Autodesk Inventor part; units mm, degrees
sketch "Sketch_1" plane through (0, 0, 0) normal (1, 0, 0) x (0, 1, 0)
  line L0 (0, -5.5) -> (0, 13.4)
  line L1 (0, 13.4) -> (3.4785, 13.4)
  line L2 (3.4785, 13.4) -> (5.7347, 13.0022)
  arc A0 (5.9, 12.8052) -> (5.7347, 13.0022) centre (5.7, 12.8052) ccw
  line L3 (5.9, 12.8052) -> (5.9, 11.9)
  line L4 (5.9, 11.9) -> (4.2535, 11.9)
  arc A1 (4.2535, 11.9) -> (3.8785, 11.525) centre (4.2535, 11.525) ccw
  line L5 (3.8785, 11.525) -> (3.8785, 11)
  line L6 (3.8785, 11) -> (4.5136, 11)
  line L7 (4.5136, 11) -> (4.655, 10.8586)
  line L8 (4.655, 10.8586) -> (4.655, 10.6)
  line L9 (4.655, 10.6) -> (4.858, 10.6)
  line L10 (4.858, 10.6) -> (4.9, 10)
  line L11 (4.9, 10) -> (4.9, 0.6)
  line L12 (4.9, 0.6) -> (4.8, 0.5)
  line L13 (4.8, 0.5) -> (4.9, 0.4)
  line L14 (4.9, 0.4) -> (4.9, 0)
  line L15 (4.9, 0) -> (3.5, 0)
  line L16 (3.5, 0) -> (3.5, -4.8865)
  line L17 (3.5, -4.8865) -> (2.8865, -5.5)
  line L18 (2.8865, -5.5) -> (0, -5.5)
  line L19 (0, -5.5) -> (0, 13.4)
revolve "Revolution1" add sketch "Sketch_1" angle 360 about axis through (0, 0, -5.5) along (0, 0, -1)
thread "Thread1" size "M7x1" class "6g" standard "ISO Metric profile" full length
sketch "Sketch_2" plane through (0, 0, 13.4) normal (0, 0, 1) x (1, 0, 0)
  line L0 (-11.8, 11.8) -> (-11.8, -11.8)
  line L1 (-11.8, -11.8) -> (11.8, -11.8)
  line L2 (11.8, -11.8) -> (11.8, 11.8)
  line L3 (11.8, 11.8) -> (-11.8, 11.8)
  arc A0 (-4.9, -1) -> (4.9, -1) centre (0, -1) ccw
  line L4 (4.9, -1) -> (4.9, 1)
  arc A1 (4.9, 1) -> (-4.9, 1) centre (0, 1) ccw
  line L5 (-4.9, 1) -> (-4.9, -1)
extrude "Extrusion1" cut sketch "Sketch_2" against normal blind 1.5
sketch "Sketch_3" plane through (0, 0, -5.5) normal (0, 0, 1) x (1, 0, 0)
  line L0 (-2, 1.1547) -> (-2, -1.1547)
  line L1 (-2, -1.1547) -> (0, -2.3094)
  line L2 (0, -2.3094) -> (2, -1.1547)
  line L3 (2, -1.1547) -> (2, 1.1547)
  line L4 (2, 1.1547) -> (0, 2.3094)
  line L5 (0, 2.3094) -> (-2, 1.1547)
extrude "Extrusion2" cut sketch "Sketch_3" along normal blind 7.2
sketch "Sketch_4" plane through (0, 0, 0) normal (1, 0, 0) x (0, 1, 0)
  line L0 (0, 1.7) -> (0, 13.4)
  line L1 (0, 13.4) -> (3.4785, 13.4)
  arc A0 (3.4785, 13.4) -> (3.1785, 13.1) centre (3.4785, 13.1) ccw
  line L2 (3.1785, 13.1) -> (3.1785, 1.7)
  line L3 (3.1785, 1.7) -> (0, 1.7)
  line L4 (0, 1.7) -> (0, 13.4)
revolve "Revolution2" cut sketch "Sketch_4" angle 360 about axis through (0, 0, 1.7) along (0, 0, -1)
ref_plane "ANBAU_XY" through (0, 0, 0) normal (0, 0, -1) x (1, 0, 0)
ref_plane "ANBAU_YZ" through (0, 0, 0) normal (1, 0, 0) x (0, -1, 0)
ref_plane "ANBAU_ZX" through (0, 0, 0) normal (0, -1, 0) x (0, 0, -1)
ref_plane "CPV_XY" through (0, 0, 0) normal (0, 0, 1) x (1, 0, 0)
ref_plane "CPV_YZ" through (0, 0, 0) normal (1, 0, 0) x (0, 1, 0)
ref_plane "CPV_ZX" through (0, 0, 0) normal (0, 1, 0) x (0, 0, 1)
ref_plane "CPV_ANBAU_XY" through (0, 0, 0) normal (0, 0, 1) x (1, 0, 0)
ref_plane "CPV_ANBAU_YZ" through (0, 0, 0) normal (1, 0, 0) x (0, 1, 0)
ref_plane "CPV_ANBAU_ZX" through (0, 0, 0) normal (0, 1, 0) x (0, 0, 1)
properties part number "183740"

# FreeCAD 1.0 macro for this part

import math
import FreeCAD as App
import Part
import Sketcher
from FreeCAD import Vector
Q = App.Units.Quantity


def add_polygon(sketch, points):
    """Adds a closed chain of lines whose ends are joined by coincident constraints."""
    first, n = sketch.GeometryCount, len(points)
    for a, b in zip(points, points[1:] + points[:1]):
        sketch.addGeometry(Part.LineSegment(App.Vector(*a, 0), App.Vector(*b, 0)), False)
    for i in range(n):
        sketch.addConstraint(Sketcher.Constraint("Coincident", first + i, 2, first + (i + 1) % n, 1))

doc = App.newDocument("Part")
params = doc.addObject("Spreadsheet::Sheet", "Params")
for row, (alias, value) in enumerate([
    ("sketch1_radius", "0.2 mm"),
    ("sketch1_width", "1.4 mm"),
    ("sketch1_height", "18.9 mm"),
    ("sketch1_height2", "0.4 mm"),
    ("sketch1_height3", "9.4 mm"),
    ("revolution_angle", "360 deg"),
    ("sketch2_radius", "4.9 mm"),
    ("sketch2_height", "2 mm"),
    ("sketch2_width", "23.6 mm"),
    ("pocket1_length", "1.5 mm"),
    ("pocket2_length", "7.2 mm"),
    ("sketch4_radius", "0.3 mm"),
    ("sketch4_height", "11.7 mm"),
    ("groove_angle", "360 deg"),
], start=1):
    params.set(f"A{row}", alias)
    params.set(f"B{row}", "=" + value)
    params.setAlias(f"B{row}", alias)

body = doc.addObject("PartDesign::Body", "Body")

# Sketch on YZ plane
sketch1 = body.newObject("Sketcher::SketchObject", "Sketch")
sketch1.AttachmentSupport = (doc.getObject("YZ_Plane"), [""])
sketch1.MapMode = "FlatFace"
sketch1.addGeometry(Part.LineSegment(Vector(0, 13.4, 0), Vector(0, -5.5, 0)), False)
sketch1.addGeometry(Part.LineSegment(Vector(0, -5.5, 0), Vector(2.89, -5.5, 0)), False)
sketch1.addGeometry(Part.LineSegment(Vector(2.89, -5.5, 0), Vector(3.5, -4.89, 0)), False)
sketch1.addGeometry(Part.LineSegment(Vector(3.5, -4.89, 0), Vector(3.5, 0, 0)), False)
sketch1.addGeometry(Part.LineSegment(Vector(3.5, 0, 0), Vector(4.9, 0, 0)), False)
sketch1.addGeometry(Part.LineSegment(Vector(4.9, 0, 0), Vector(4.9, 0.4, 0)), False)
sketch1.addGeometry(Part.LineSegment(Vector(4.9, 0.4, 0), Vector(4.8, 0.5, 0)), False)
sketch1.addGeometry(Part.LineSegment(Vector(4.8, 0.5, 0), Vector(4.9, 0.6, 0)), False)
sketch1.addGeometry(Part.LineSegment(Vector(4.9, 0.6, 0), Vector(4.9, 10, 0)), False)
sketch1.addGeometry(Part.LineSegment(Vector(4.9, 10, 0), Vector(4.86, 10.6, 0)), False)
sketch1.addGeometry(Part.LineSegment(Vector(4.86, 10.6, 0), Vector(4.66, 10.6, 0)), False)
sketch1.addGeometry(Part.LineSegment(Vector(4.66, 10.6, 0), Vector(4.66, 10.86, 0)), False)
sketch1.addGeometry(Part.LineSegment(Vector(4.66, 10.86, 0), Vector(4.51, 11, 0)), False)
sketch1.addGeometry(Part.LineSegment(Vector(4.51, 11, 0), Vector(3.88, 11, 0)), False)
sketch1.addGeometry(Part.LineSegment(Vector(3.88, 11, 0), Vector(3.88, 11.53, 0)), False)
sketch1.addGeometry(Part.ArcOfCircle(Part.Circle(Vector(4.25, 11.53, 0), Vector(0, 0, 1), 0.38), math.radians(90), math.radians(180)), False)
sketch1.addGeometry(Part.LineSegment(Vector(4.25, 11.9, 0), Vector(5.9, 11.9, 0)), False)
sketch1.addGeometry(Part.LineSegment(Vector(5.9, 11.9, 0), Vector(5.9, 12.81, 0)), False)
sketch1.addGeometry(Part.ArcOfCircle(Part.Circle(Vector(5.7, 12.81, 0), Vector(0, 0, 1), 0.2), math.radians(0), math.radians(80)), False)
sketch1.addGeometry(Part.LineSegment(Vector(5.73, 13, 0), Vector(3.48, 13.4, 0)), False)
sketch1.addGeometry(Part.LineSegment(Vector(3.48, 13.4, 0), Vector(0, 13.4, 0)), False)
sketch1.addConstraint(Sketcher.Constraint("Coincident", 0, 2, 1, 1))
sketch1.addConstraint(Sketcher.Constraint("Coincident", 1, 2, 2, 1))
sketch1.addConstraint(Sketcher.Constraint("Coincident", 2, 2, 3, 1))
sketch1.addConstraint(Sketcher.Constraint("Coincident", 3, 2, 4, 1))
sketch1.addConstraint(Sketcher.Constraint("Coincident", 4, 2, 5, 1))
sketch1.addConstraint(Sketcher.Constraint("Coincident", 5, 2, 6, 1))
sketch1.addConstraint(Sketcher.Constraint("Coincident", 6, 2, 7, 1))
sketch1.addConstraint(Sketcher.Constraint("Coincident", 7, 2, 8, 1))
sketch1.addConstraint(Sketcher.Constraint("Coincident", 8, 2, 9, 1))
sketch1.addConstraint(Sketcher.Constraint("Coincident", 9, 2, 10, 1))
sketch1.addConstraint(Sketcher.Constraint("Coincident", 10, 2, 11, 1))
sketch1.addConstraint(Sketcher.Constraint("Coincident", 11, 2, 12, 1))
sketch1.addConstraint(Sketcher.Constraint("Coincident", 12, 2, 13, 1))
sketch1.addConstraint(Sketcher.Constraint("Coincident", 13, 2, 14, 1))
sketch1.addConstraint(Sketcher.Constraint("Tangent", 14, 2, 15, 2))
sketch1.addConstraint(Sketcher.Constraint("Tangent", 15, 1, 16, 1))
sketch1.addConstraint(Sketcher.Constraint("Coincident", 16, 2, 17, 1))
sketch1.addConstraint(Sketcher.Constraint("Tangent", 17, 2, 18, 1))
sketch1.addConstraint(Sketcher.Constraint("Tangent", 18, 2, 19, 1))
sketch1.addConstraint(Sketcher.Constraint("Coincident", 19, 2, 20, 1))
sketch1.addConstraint(Sketcher.Constraint("Coincident", 20, 2, 0, 1))
sketch1.addConstraint(Sketcher.Constraint("Vertical", 0))
sketch1.addConstraint(Sketcher.Constraint("Horizontal", 1))
sketch1.addConstraint(Sketcher.Constraint("Vertical", 3))
sketch1.addConstraint(Sketcher.Constraint("Horizontal", 4))
sketch1.addConstraint(Sketcher.Constraint("Vertical", 5))
sketch1.addConstraint(Sketcher.Constraint("Vertical", 8))
sketch1.addConstraint(Sketcher.Constraint("Horizontal", 10))
sketch1.addConstraint(Sketcher.Constraint("Vertical", 11))
sketch1.addConstraint(Sketcher.Constraint("Horizontal", 13))
sketch1.addConstraint(Sketcher.Constraint("Vertical", 14))
sketch1.addConstraint(Sketcher.Constraint("Horizontal", 16))
sketch1.addConstraint(Sketcher.Constraint("Vertical", 17))
sketch1.addConstraint(Sketcher.Constraint("Horizontal", 20))
sketch1.addConstraint(Sketcher.Constraint("PointOnObject", 0, 2, -2))
sketch1.addConstraint(Sketcher.Constraint("PointOnObject", 3, 2, -1))
sketch1.addConstraint(Sketcher.Constraint("Perpendicular", 2, 6))
sketch1.addConstraint(Sketcher.Constraint("Perpendicular", 6, 7))
sketch1.addConstraint(Sketcher.Constraint("Perpendicular", 7, 12))
sketch1.addConstraint(Sketcher.Constraint("Vertical", 5, 2, 7, 2))
sketch1.addConstraint(Sketcher.Constraint("Equal", 6, 7))
sketch1.addConstraint(Sketcher.Constraint("Radius", 18, Q("0.2 mm")))
sketch1.addConstraint(Sketcher.Constraint("Angle", 19, Q("170.0007 deg")))
sketch1.addConstraint(Sketcher.Constraint("DistanceX", 4, 1, 4, 2, Q("1.4 mm")))
sketch1.addConstraint(Sketcher.Constraint("DistanceY", 0, 2, 0, 1, Q("18.9 mm")))
sketch1.addConstraint(Sketcher.Constraint("DistanceY", 5, 1, 5, 2, Q("0.4 mm")))
sketch1.addConstraint(Sketcher.Constraint("DistanceY", 8, 1, 8, 2, Q("9.4 mm")))
sketch1.addConstraint(Sketcher.Constraint("DistanceY", -1, 1, 8, 2, Q("10 mm")))
sketch1.addConstraint(Sketcher.Constraint("DistanceY", -1, 1, 12, 2, Q("11 mm")))
sketch1.addConstraint(Sketcher.Constraint("Radius", 15, Q("0.375 mm")))
sketch1.addConstraint(Sketcher.Constraint("DistanceY", 1, 2, 6, 2, Q("6 mm")))
sketch1.addConstraint(Sketcher.Constraint("DistanceY", 7, 2, 9, 2, Q("10 mm")))
sketch1.addConstraint(Sketcher.Constraint("Distance", 12, Q("0.2 mm")))
sketch1.addConstraint(Sketcher.Constraint("DistanceX", -1, 1, 18, 3, Q("5.7 mm")))
sketch1.addConstraint(Sketcher.Constraint("DistanceX", -1, 1, 2, 2, Q("3.5 mm")))
sketch1.addConstraint(Sketcher.Constraint("DistanceY", -1, 1, 15, 1, Q("11.9 mm")))
sketch1.addConstraint(Sketcher.Constraint("DistanceX", 19, 2, 14, 2, Q("0.4 mm")))
sketch1.addConstraint(Sketcher.Constraint("DistanceX", 10, 2, 10, 1, Q("0.203 mm")))
sketch1.addConstraint(Sketcher.Constraint("DistanceX", 13, 2, 13, 1, Q("0.635 mm")))
sketch1.addConstraint(Sketcher.Constraint("Distance", 19, Q("2.291 mm")))
sketch1.addConstraint(Sketcher.Constraint("DistanceX", 1, 1, 1, 2, Q("2.8865 mm")))
sketch1.setExpression("Constraints[41]", "Params.sketch1_radius")
sketch1.setExpression("Constraints[43]", "Params.sketch1_width")
sketch1.setExpression("Constraints[44]", "Params.sketch1_height")
sketch1.setExpression("Constraints[45]", "Params.sketch1_height2")
sketch1.setExpression("Constraints[46]", "Params.sketch1_height3")
revolution = body.newObject("PartDesign::Revolution", "Revolution")
revolution.Profile = sketch1
revolution.ReferenceAxis = (sketch1, ["V_Axis"])
revolution.setExpression("Angle", "Params.revolution_angle")

# Sketch on XY plane
sketch2 = body.newObject("Sketcher::SketchObject", "Sketch001")
sketch2.AttachmentSupport = (doc.getObject("XY_Plane"), [""])
sketch2.MapMode = "FlatFace"
sketch2.AttachmentOffset = App.Placement(Vector(0, 0, 13.4), App.Rotation())
add_polygon(sketch2, [(11.8, 11.8), (-11.8, 11.8), (-11.8, -11.8), (11.8, -11.8)])  # lines 0-3
sketch2.addGeometry(Part.ArcOfCircle(Part.Circle(Vector(0, -1, 0), Vector(0, 0, 1), 4.9), math.radians(180), math.radians(360)), False)  # 4
sketch2.addGeometry(Part.LineSegment(Vector(-4.9, -1, 0), Vector(-4.9, 1, 0)), False)  # 5
sketch2.addGeometry(Part.ArcOfCircle(Part.Circle(Vector(0, 1, 0), Vector(0, 0, 1), 4.9), math.radians(0), math.radians(180)), False)  # 6
sketch2.addGeometry(Part.LineSegment(Vector(4.9, 1, 0), Vector(4.9, -1, 0)), False)  # 7
sketch2.addConstraint(Sketcher.Constraint("Tangent", 4, 1, 5, 1))
sketch2.addConstraint(Sketcher.Constraint("Tangent", 5, 2, 6, 2))
sketch2.addConstraint(Sketcher.Constraint("Tangent", 6, 1, 7, 1))
sketch2.addConstraint(Sketcher.Constraint("Tangent", 7, 2, 4, 2))
sketch2.addConstraint(Sketcher.Constraint("Horizontal", 0))
sketch2.addConstraint(Sketcher.Constraint("Vertical", 1))
sketch2.addConstraint(Sketcher.Constraint("Horizontal", 2))
sketch2.addConstraint(Sketcher.Constraint("Vertical", 3))
sketch2.addConstraint(Sketcher.Constraint("Vertical", 5))
sketch2.addConstraint(Sketcher.Constraint("Vertical", 7))
sketch2.addConstraint(Sketcher.Constraint("Symmetric", 4, 3, 6, 3, -1, 1))
sketch2.addConstraint(Sketcher.Constraint("Symmetric", 0, 2, 2, 2, -1, 1))
sketch2.addConstraint(Sketcher.Constraint("Equal", 2, 1))
sketch2.addConstraint(Sketcher.Constraint("Radius", 4, Q("4.9 mm")))
sketch2.addConstraint(Sketcher.Constraint("DistanceY", 5, 1, 5, 2, Q("2 mm")))
sketch2.addConstraint(Sketcher.Constraint("DistanceX", 0, 2, 0, 1, Q("23.6 mm")))
sketch2.setExpression("Constraints[17]", "Params.sketch2_radius")
sketch2.setExpression("Constraints[18]", "Params.sketch2_height")
sketch2.setExpression("Constraints[19]", "Params.sketch2_width")
pocket1 = body.newObject("PartDesign::Pocket", "Pocket")
pocket1.Profile = sketch2
pocket1.setExpression("Length", "Params.pocket1_length")

# Sketch on XY plane
sketch3 = body.newObject("Sketcher::SketchObject", "Sketch002")
sketch3.AttachmentSupport = (doc.getObject("XY_Plane"), [""])
sketch3.MapMode = "FlatFace"
sketch3.AttachmentOffset = App.Placement(Vector(0, 0, -5.5), App.Rotation())
add_polygon(sketch3, [(0, 2.3), (-2, 1.2), (-2, -1.2), (0, -2.3), (2, -1.2), (2, 1.2)])  # lines 0-5
sketch3.addConstraint(Sketcher.Constraint("Vertical", 1))
sketch3.addConstraint(Sketcher.Constraint("Vertical", 4))
sketch3.addConstraint(Sketcher.Constraint("Symmetric", 0, 2, 3, 2, -1, 1))
sketch3.addConstraint(Sketcher.Constraint("Symmetric", 2, 2, 5, 2, -1, 1))
sketch3.addConstraint(Sketcher.Constraint("PointOnObject", 2, 2, -2))
sketch3.addConstraint(Sketcher.Constraint("Parallel", 2, 5))
sketch3.addConstraint(Sketcher.Constraint("Horizontal", 1, 2, 3, 2))
sketch3.addConstraint(Sketcher.Constraint("Angle", 0, Q("-150 deg")))
sketch3.addConstraint(Sketcher.Constraint("DistanceX", 0, 2, -1, 1, Q("2 mm")))
sketch3.addConstraint(Sketcher.Constraint("DistanceY", 1, 2, 1, 1, Q("2.3094 mm")))
pocket2 = body.newObject("PartDesign::Pocket", "Pocket001")
pocket2.Profile = sketch3
pocket2.setExpression("Length", "Params.pocket2_length")
pocket2.Reversed = True

# Sketch on YZ plane
sketch4 = body.newObject("Sketcher::SketchObject", "Sketch003")
sketch4.AttachmentSupport = (doc.getObject("YZ_Plane"), [""])
sketch4.MapMode = "FlatFace"
sketch4.addGeometry(Part.LineSegment(Vector(0, 13.4, 0), Vector(0, 1.7, 0)), False)
sketch4.addGeometry(Part.LineSegment(Vector(0, 1.7, 0), Vector(3.18, 1.7, 0)), False)
sketch4.addGeometry(Part.LineSegment(Vector(3.18, 1.7, 0), Vector(3.18, 13.1, 0)), False)
sketch4.addGeometry(Part.ArcOfCircle(Part.Circle(Vector(3.48, 13.1, 0), Vector(0, 0, 1), 0.3), math.radians(90), math.radians(180)), False)
sketch4.addGeometry(Part.LineSegment(Vector(3.48, 13.4, 0), Vector(0, 13.4, 0)), False)
sketch4.addConstraint(Sketcher.Constraint("Coincident", 0, 2, 1, 1))
sketch4.addConstraint(Sketcher.Constraint("Coincident", 1, 2, 2, 1))
sketch4.addConstraint(Sketcher.Constraint("Tangent", 2, 2, 3, 2))
sketch4.addConstraint(Sketcher.Constraint("Tangent", 3, 1, 4, 1))
sketch4.addConstraint(Sketcher.Constraint("Coincident", 4, 2, 0, 1))
sketch4.addConstraint(Sketcher.Constraint("Vertical", 0))
sketch4.addConstraint(Sketcher.Constraint("Horizontal", 1))
sketch4.addConstraint(Sketcher.Constraint("Vertical", 2))
sketch4.addConstraint(Sketcher.Constraint("Horizontal", 4))
sketch4.addConstraint(Sketcher.Constraint("PointOnObject", 0, 2, -2))
sketch4.addConstraint(Sketcher.Constraint("Radius", 3, Q("0.3 mm")))
sketch4.addConstraint(Sketcher.Constraint("DistanceY", 0, 2, 0, 1, Q("11.7 mm")))
sketch4.addConstraint(Sketcher.Constraint("DistanceY", -1, 1, 3, 3, Q("13.1 mm")))
sketch4.addConstraint(Sketcher.Constraint("DistanceX", 1, 1, 1, 2, Q("3.1785 mm")))
sketch4.setExpression("Constraints[10]", "Params.sketch4_radius")
sketch4.setExpression("Constraints[11]", "Params.sketch4_height")
groove = body.newObject("PartDesign::Groove", "Groove")
groove.Profile = sketch4
groove.ReferenceAxis = (sketch4, ["V_Axis"])
groove.setExpression("Angle", "Params.groove_angle")

doc.recompute()
